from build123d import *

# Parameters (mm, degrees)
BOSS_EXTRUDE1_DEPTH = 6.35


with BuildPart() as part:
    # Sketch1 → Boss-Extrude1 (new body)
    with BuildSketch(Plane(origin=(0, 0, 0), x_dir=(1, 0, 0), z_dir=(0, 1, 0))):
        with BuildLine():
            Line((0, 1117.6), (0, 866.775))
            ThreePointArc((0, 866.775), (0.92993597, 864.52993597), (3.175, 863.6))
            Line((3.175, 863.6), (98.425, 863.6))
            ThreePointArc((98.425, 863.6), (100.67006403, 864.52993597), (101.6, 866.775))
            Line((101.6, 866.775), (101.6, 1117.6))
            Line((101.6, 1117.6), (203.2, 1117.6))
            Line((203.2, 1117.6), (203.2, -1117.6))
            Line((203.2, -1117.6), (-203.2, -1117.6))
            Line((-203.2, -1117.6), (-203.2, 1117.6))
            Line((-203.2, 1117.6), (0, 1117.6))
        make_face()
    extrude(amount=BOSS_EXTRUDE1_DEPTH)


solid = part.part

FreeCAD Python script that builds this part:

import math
import FreeCAD as App
import Part
import Sketcher

V = App.Vector
Q = App.Units.Quantity

doc = App.newDocument("Part")
params = doc.addObject("Spreadsheet::Sheet", "Params")
for row, (alias, value) in enumerate([
    ("sketch1_width", "8 in"),
    ("sketch1_width2", "4 in"),
    ("sketch1_height", "88 in"),
    ("sketch1_radius", "0.125 in"),
    ("pad1_length", "0.25 in"),
], start=1):
    params.set(f"A{row}", alias)
    params.set(f"B{row}", "=" + value)
    params.setAlias(f"B{row}", alias)

body = doc.addObject("PartDesign::Body", "Body")

# Sketch on XZ plane
sketch1 = body.newObject("Sketcher::SketchObject", "Sketch")
sketch1.AttachmentSupport = (doc.getObject("XZ_Plane"), [""])
sketch1.MapMode = "FlatFace"
sketch1.addGeometry([
    Part.LineSegment(V(0, -866.8, 0), V(0, -1117.6, 0)),  # 0
    Part.LineSegment(V(0, -1117.6, 0), V(-203.2, -1117.6, 0)),  # 1
    Part.LineSegment(V(-203.2, -1117.6, 0), V(-203.2, 1117.6, 0)),  # 2
    Part.LineSegment(V(-203.2, 1117.6, 0), V(203.2, 1117.6, 0)),  # 3
    Part.LineSegment(V(203.2, 1117.6, 0), V(203.2, -1117.6, 0)),  # 4
    Part.LineSegment(V(203.2, -1117.6, 0), V(101.6, -1117.6, 0)),  # 5
    Part.LineSegment(V(101.6, -1117.6, 0), V(101.6, -866.8, 0)),  # 6
    Part.ArcOfCircle(Part.Circle(V(98.4, -866.8, 0), V(0, 0, 1), 3.2), math.radians(0), math.radians(90)),  # 7
    Part.LineSegment(V(98.4, -863.6, 0), V(3.2, -863.6, 0)),  # 8
    Part.ArcOfCircle(Part.Circle(V(3.2, -866.8, 0), V(0, 0, 1), 3.2), math.radians(90), math.radians(180)),  # 9
], False)
sketch1.addConstraint([
    Sketcher.Constraint("Coincident", 0, 2, 1, 1),
    Sketcher.Constraint("Coincident", 1, 2, 2, 1),
    Sketcher.Constraint("Coincident", 2, 2, 3, 1),
    Sketcher.Constraint("Coincident", 3, 2, 4, 1),
    Sketcher.Constraint("Coincident", 4, 2, 5, 1),
    Sketcher.Constraint("Coincident", 5, 2, 6, 1),
    Sketcher.Constraint("Tangent", 6, 2, 7, 1),
    Sketcher.Constraint("Tangent", 7, 2, 8, 1),
    Sketcher.Constraint("Tangent", 8, 2, 9, 1),
    Sketcher.Constraint("Tangent", 9, 2, 0, 1),
    Sketcher.Constraint("Vertical", 0),
    Sketcher.Constraint("Horizontal", 1),
    Sketcher.Constraint("Vertical", 2),
    Sketcher.Constraint("Horizontal", 3),
    Sketcher.Constraint("Vertical", 4),
    Sketcher.Constraint("Horizontal", 5),
    Sketcher.Constraint("Vertical", 6),
    Sketcher.Constraint("Horizontal", 8),
    Sketcher.Constraint("Equal", 7, 9),
    Sketcher.Constraint("Symmetric", 1, 2, 3, 2, -1, 1),
    Sketcher.Constraint("PointOnObject", 0, 2, -2),
    Sketcher.Constraint("Horizontal", 1, 2, 4, 2),
    Sketcher.Constraint("DistanceX", 1, 2, 1, 1, Q("8 in")),
    Sketcher.Constraint("DistanceX", 5, 2, 5, 1, Q("4 in")),
    Sketcher.Constraint("DistanceY", 2, 1, 2, 2, Q("88 in")),
    Sketcher.Constraint("DistanceY", 7, 2, -1, 1, Q("34 in")),
    Sketcher.Constraint("Radius", 7, Q("0.125 in")),
])
sketch1.setExpression("Constraints[22]", "Params.sketch1_width")
sketch1.setExpression("Constraints[23]", "Params.sketch1_width2")
sketch1.setExpression("Constraints[24]", "Params.sketch1_height")
sketch1.setExpression("Constraints[26]", "Params.sketch1_radius")
pad1 = body.newObject("PartDesign::Pad", "Pad")
pad1.Profile = sketch1
pad1.setExpression("Length", "Params.pad1_length")
pad1.Reversed = True

doc.recompute()
